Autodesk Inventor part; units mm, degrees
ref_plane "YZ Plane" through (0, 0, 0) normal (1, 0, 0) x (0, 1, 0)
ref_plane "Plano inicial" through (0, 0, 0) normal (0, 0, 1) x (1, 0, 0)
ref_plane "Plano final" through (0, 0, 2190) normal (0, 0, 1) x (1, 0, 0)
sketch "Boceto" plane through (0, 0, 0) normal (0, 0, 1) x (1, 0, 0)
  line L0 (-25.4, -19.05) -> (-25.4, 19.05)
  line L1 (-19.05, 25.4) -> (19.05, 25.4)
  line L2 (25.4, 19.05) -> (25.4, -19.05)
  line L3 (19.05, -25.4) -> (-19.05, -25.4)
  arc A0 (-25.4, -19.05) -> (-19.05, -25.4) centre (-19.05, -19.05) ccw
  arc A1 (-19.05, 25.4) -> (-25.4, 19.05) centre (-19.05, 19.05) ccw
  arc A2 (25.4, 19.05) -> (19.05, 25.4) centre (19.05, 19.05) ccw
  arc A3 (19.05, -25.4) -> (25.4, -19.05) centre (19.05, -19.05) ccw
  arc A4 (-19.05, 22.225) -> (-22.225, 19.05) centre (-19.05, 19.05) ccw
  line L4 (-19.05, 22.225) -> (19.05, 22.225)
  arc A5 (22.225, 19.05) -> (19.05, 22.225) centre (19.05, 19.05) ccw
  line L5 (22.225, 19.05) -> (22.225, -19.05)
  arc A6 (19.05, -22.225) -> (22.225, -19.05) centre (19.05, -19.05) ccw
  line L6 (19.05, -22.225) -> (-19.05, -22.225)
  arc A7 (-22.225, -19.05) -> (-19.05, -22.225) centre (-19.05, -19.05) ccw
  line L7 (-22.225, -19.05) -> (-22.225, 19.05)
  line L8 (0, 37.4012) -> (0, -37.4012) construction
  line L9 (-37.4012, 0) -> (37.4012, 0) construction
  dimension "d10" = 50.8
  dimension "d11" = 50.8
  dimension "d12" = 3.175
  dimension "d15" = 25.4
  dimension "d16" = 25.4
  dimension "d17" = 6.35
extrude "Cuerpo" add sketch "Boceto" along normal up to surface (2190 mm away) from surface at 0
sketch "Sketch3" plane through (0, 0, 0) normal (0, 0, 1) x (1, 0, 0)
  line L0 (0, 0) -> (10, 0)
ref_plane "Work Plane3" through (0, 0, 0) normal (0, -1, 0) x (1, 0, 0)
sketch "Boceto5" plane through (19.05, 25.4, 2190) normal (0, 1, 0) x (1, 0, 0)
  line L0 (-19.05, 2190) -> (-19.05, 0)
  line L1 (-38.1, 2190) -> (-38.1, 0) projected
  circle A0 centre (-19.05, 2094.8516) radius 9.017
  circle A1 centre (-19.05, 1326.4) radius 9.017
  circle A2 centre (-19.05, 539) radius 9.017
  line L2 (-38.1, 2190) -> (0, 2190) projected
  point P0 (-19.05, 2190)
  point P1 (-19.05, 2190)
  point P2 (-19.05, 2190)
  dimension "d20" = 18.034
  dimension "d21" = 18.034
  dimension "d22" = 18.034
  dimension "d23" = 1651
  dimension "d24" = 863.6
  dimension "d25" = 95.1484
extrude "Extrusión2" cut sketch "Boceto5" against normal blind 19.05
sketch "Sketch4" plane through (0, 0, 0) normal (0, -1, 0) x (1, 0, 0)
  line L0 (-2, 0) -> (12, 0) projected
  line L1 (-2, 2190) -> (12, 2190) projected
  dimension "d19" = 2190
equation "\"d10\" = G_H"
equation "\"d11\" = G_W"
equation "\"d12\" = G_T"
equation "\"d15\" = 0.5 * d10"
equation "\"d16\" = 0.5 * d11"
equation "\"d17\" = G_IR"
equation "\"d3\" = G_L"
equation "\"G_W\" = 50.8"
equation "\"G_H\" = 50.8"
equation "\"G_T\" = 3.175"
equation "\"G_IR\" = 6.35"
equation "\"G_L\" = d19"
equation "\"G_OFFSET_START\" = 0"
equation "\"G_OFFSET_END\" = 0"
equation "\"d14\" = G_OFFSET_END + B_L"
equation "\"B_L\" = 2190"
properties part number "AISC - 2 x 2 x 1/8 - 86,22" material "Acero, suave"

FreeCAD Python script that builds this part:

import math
import FreeCAD as App
import Part
import Sketcher
from FreeCAD import Vector
Q = App.Units.Quantity

doc = App.newDocument("Part")
params = doc.addObject("Spreadsheet::Sheet", "Params")
for row, (alias, value) in enumerate([
    ("sketch1_radius", "0.25 in"),
    ("sketch1_radius2", "0.125 in"),
    ("pad1_length", "2190 mm"),
    ("sketch2_diameter", "0.71 in"),
    ("pocket1_length", "0.75 in"),
], start=1):
    params.set(f"A{row}", alias)
    params.set(f"B{row}", "=" + value)
    params.setAlias(f"B{row}", alias)

body = doc.addObject("PartDesign::Body", "Body")

# Sketch on XY plane
sketch1 = body.newObject("Sketcher::SketchObject", "Sketch")
sketch1.AttachmentSupport = (doc.getObject("XY_Plane"), [""])
sketch1.MapMode = "FlatFace"
sketch1.addGeometry(Part.LineSegment(Vector(-25.4, 19.05, 0), Vector(-25.4, -19.05, 0)), False)
sketch1.addGeometry(Part.ArcOfCircle(Part.Circle(Vector(-19.05, -19.05, 0), Vector(0, 0, 1), 6.35), math.radians(180), math.radians(270)), False)
sketch1.addGeometry(Part.LineSegment(Vector(-19.05, -25.4, 0), Vector(19.05, -25.4, 0)), False)
sketch1.addGeometry(Part.ArcOfCircle(Part.Circle(Vector(19.05, -19.05, 0), Vector(0, 0, 1), 6.35), math.radians(-90), math.radians(0)), False)
sketch1.addGeometry(Part.LineSegment(Vector(25.4, -19.05, 0), Vector(25.4, 19.05, 0)), False)
sketch1.addGeometry(Part.ArcOfCircle(Part.Circle(Vector(19.05, 19.05, 0), Vector(0, 0, 1), 6.35), math.radians(0), math.radians(90)), False)
sketch1.addGeometry(Part.LineSegment(Vector(19.05, 25.4, 0), Vector(-19.05, 25.4, 0)), False)
sketch1.addGeometry(Part.ArcOfCircle(Part.Circle(Vector(-19.05, 19.05, 0), Vector(0, 0, 1), 6.35), math.radians(90), math.radians(180)), False)
sketch1.addGeometry(Part.ArcOfCircle(Part.Circle(Vector(-19.05, 19.05, 0), Vector(0, 0, 1), 3.175), math.radians(90), math.radians(180)), False)
sketch1.addGeometry(Part.LineSegment(Vector(-19.05, 22.225, 0), Vector(19.05, 22.225, 0)), False)
sketch1.addGeometry(Part.ArcOfCircle(Part.Circle(Vector(19.05, 19.05, 0), Vector(0, 0, 1), 3.175), math.radians(0), math.radians(90)), False)
sketch1.addGeometry(Part.LineSegment(Vector(22.225, 19.05, 0), Vector(22.225, -19.05, 0)), False)
sketch1.addGeometry(Part.ArcOfCircle(Part.Circle(Vector(19.05, -19.05, 0), Vector(0, 0, 1), 3.175), math.radians(-90), math.radians(0)), False)
sketch1.addGeometry(Part.LineSegment(Vector(19.05, -22.225, 0), Vector(-19.05, -22.225, 0)), False)
sketch1.addGeometry(Part.ArcOfCircle(Part.Circle(Vector(-19.05, -19.05, 0), Vector(0, 0, 1), 3.175), math.radians(180), math.radians(270)), False)
sketch1.addGeometry(Part.LineSegment(Vector(-22.225, -19.05, 0), Vector(-22.225, 19.05, 0)), False)
sketch1.addConstraint(Sketcher.Constraint("Tangent", 0, 2, 1, 1))
sketch1.addConstraint(Sketcher.Constraint("Tangent", 1, 2, 2, 1))
sketch1.addConstraint(Sketcher.Constraint("Tangent", 2, 2, 3, 1))
sketch1.addConstraint(Sketcher.Constraint("Tangent", 3, 2, 4, 1))
sketch1.addConstraint(Sketcher.Constraint("Tangent", 4, 2, 5, 1))
sketch1.addConstraint(Sketcher.Constraint("Tangent", 5, 2, 6, 1))
sketch1.addConstraint(Sketcher.Constraint("Tangent", 6, 2, 7, 1))
sketch1.addConstraint(Sketcher.Constraint("Tangent", 7, 2, 0, 1))
sketch1.addConstraint(Sketcher.Constraint("Tangent", 8, 1, 9, 1))
sketch1.addConstraint(Sketcher.Constraint("Tangent", 9, 2, 10, 2))
sketch1.addConstraint(Sketcher.Constraint("Tangent", 10, 1, 11, 1))
sketch1.addConstraint(Sketcher.Constraint("Tangent", 11, 2, 12, 2))
sketch1.addConstraint(Sketcher.Constraint("Tangent", 12, 1, 13, 1))
sketch1.addConstraint(Sketcher.Constraint("Tangent", 13, 2, 14, 2))
sketch1.addConstraint(Sketcher.Constraint("Tangent", 14, 1, 15, 1))
sketch1.addConstraint(Sketcher.Constraint("Tangent", 15, 2, 8, 2))
sketch1.addConstraint(Sketcher.Constraint("Vertical", 0))
sketch1.addConstraint(Sketcher.Constraint("Horizontal", 2))
sketch1.addConstraint(Sketcher.Constraint("Vertical", 4))
sketch1.addConstraint(Sketcher.Constraint("Horizontal", 6))
sketch1.addConstraint(Sketcher.Constraint("Horizontal", 9))
sketch1.addConstraint(Sketcher.Constraint("Vertical", 11))
sketch1.addConstraint(Sketcher.Constraint("Horizontal", 13))
sketch1.addConstraint(Sketcher.Constraint("Vertical", 15))
sketch1.addConstraint(Sketcher.Constraint("Coincident", 8, 3, 7, 3))
sketch1.addConstraint(Sketcher.Constraint("Coincident", 10, 3, 5, 3))
sketch1.addConstraint(Sketcher.Constraint("Coincident", 12, 3, 3, 3))
sketch1.addConstraint(Sketcher.Constraint("Equal", 1, 3))
sketch1.addConstraint(Sketcher.Constraint("Equal", 3, 5))
sketch1.addConstraint(Sketcher.Constraint("Equal", 5, 7))
sketch1.addConstraint(Sketcher.Constraint("Equal", 12, 14))
sketch1.addConstraint(Sketcher.Constraint("Symmetric", 1, 3, 5, 3, -1, 1))
sketch1.addConstraint(Sketcher.Constraint("Equal", 13, 0))
sketch1.addConstraint(Sketcher.Constraint("Radius", 1, Q("0.25 in")))
sketch1.addConstraint(Sketcher.Constraint("DistanceX", 0, 2, -1, 1, Q("1 in")))
sketch1.addConstraint(Sketcher.Constraint("Radius", 8, Q("0.125 in")))
sketch1.setExpression("Constraints[33]", "Params.sketch1_radius")
sketch1.setExpression("Constraints[35]", "Params.sketch1_radius2")
pad1 = body.newObject("PartDesign::Pad", "Pad")
pad1.Profile = sketch1
pad1.setExpression("Length", "Params.pad1_length")

# Sketch on XZ plane
sketch2 = body.newObject("Sketcher::SketchObject", "Sketch001")
sketch2.AttachmentSupport = (doc.getObject("XZ_Plane"), [""])
sketch2.MapMode = "FlatFace"
sketch2.AttachmentOffset = App.Placement(Vector(0, 0, -1 * 25.4), App.Rotation())
sketch2.addGeometry(Part.Circle(Vector(0, 95.1484, 0), Vector(0, 0, 1), 9.017), False)
sketch2.addGeometry(Part.Circle(Vector(0, 1651, 0), Vector(0, 0, 1), 9.017), False)
sketch2.addGeometry(Part.Circle(Vector(0, 863.6, 0), Vector(0, 0, 1), 9.017), False)
sketch2.addConstraint(Sketcher.Constraint("Equal", 0, 1))
sketch2.addConstraint(Sketcher.Constraint("Equal", 1, 2))
sketch2.addConstraint(Sketcher.Constraint("PointOnObject", 0, 3, -2))
sketch2.addConstraint(Sketcher.Constraint("PointOnObject", 1, 3, -2))
sketch2.addConstraint(Sketcher.Constraint("PointOnObject", 2, 3, -2))
sketch2.addConstraint(Sketcher.Constraint("Diameter", 0, Q("0.71 in")))
sketch2.addConstraint(Sketcher.Constraint("DistanceY", -1, 1, 1, 3, Q("65 in")))
sketch2.addConstraint(Sketcher.Constraint("DistanceY", -1, 1, 2, 3, Q("34 in")))
sketch2.addConstraint(Sketcher.Constraint("DistanceY", -1, 1, 0, 3, Q("3.746 in")))
sketch2.setExpression("Constraints[5]", "Params.sketch2_diameter")
pocket1 = body.newObject("PartDesign::Pocket", "Pocket")
pocket1.Profile = sketch2
pocket1.setExpression("Length", "Params.pocket1_length")
pocket1.Reversed = True

doc.recompute()
